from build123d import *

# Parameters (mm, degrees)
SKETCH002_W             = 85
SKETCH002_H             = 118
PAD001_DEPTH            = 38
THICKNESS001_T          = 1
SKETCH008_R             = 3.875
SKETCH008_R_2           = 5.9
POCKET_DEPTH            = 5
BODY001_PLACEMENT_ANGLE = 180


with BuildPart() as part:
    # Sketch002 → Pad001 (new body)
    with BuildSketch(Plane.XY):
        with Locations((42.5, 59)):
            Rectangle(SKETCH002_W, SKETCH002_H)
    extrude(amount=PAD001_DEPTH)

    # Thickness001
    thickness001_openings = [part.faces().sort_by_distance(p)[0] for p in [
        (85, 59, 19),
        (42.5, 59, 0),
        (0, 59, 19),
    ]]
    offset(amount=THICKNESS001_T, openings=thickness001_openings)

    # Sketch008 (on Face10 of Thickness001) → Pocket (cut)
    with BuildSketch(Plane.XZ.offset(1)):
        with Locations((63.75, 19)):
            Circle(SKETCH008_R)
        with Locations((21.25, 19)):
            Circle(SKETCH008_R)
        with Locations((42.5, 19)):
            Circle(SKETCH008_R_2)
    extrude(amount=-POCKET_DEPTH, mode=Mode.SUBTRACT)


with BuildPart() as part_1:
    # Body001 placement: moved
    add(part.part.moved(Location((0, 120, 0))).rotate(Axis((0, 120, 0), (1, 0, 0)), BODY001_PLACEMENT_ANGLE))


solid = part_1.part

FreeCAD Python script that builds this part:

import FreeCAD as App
import Part
import Sketcher


def faces_at(feature, points):
    """Names of the faces that lie closest to the given points."""
    faces = feature.Shape.Faces
    near = lambda p: min(range(len(faces)), key=lambda i: faces[i].distToShape(Part.Vertex(*p))[0])
    return sorted({f"Face{near(p) + 1}" for p in points})


def add_polygon(sketch, points):
    """Adds a closed chain of lines whose ends are joined by coincident constraints."""
    first, n = sketch.GeometryCount, len(points)
    for a, b in zip(points, points[1:] + points[:1]):
        sketch.addGeometry(Part.LineSegment(App.Vector(*a, 0), App.Vector(*b, 0)), False)
    for i in range(n):
        sketch.addConstraint(Sketcher.Constraint("Coincident", first + i, 2, first + (i + 1) % n, 1))

doc = App.newDocument("Part")
body = doc.addObject("PartDesign::Body", "Body")

# Sketch on XY plane
sketch1 = body.newObject("Sketcher::SketchObject", "Sketch")
sketch1.AttachmentSupport = (doc.getObject("XY_Plane"), [""])
sketch1.MapMode = "FlatFace"
add_polygon(sketch1, [(0, 118), (0, 0), (85, 0), (85, 118)])  # lines 0-3
sketch1.addConstraint(Sketcher.Constraint("Vertical", 0))
sketch1.addConstraint(Sketcher.Constraint("Horizontal", 1))
sketch1.addConstraint(Sketcher.Constraint("Vertical", 2))
sketch1.addConstraint(Sketcher.Constraint("Horizontal", 3))
sketch1.addConstraint(Sketcher.Constraint("Coincident", 0, 2, -1, 1))
sketch1.addConstraint(Sketcher.Constraint("DistanceX", 1, 1, 1, 2, 85.0))
sketch1.addConstraint(Sketcher.Constraint("DistanceY", 0, 2, 0, 1, 118.0))
pad1 = body.newObject("PartDesign::Pad", "Pad")
pad1.Profile = sketch1
pad1.Length = 38
doc.recompute()

thickness = body.newObject("PartDesign::Thickness", "Thickness")
thickness.Base = (pad1, faces_at(pad1, [(85, 59, 19), (42.5, 59, 0), (0, 59, 19)]))
thickness.Value = 1
thickness.Reversed = False
thickness.Join = "Arc"

# Sketch on XZ plane
sketch2 = body.newObject("Sketcher::SketchObject", "Sketch001")
sketch2.AttachmentSupport = (doc.getObject("XZ_Plane"), [""])
sketch2.MapMode = "FlatFace"
sketch2.AttachmentOffset = App.Placement(App.Vector(0, 0, 1), App.Rotation())
sketch2.addGeometry(Part.Circle(App.Vector(63.75, 19, 0), App.Vector(0, 0, 1), 3.875), False)
sketch2.addGeometry(Part.Circle(App.Vector(21.25, 19, 0), App.Vector(0, 0, 1), 3.875), False)
sketch2.addGeometry(Part.Circle(App.Vector(42.5, 19, 0), App.Vector(0, 0, 1), 5.9), False)
sketch2.addConstraint(Sketcher.Constraint("Equal", 0, 1))
sketch2.addConstraint(Sketcher.Constraint("Horizontal", 0, 3, 1, 3))
sketch2.addConstraint(Sketcher.Constraint("Horizontal", 1, 3, 2, 3))
sketch2.addConstraint(Sketcher.Constraint("Diameter", 2, 11.8))
sketch2.addConstraint(Sketcher.Constraint("Diameter", 0, 7.75))
sketch2.addConstraint(Sketcher.Constraint("DistanceY", -1, 1, 0, 3, 19.0))
sketch2.addConstraint(Sketcher.Constraint("DistanceX", -1, 1, 2, 3, 42.5))
sketch2.addConstraint(Sketcher.Constraint("DistanceX", 1, 3, 0, 3, 42.5))
sketch2.addConstraint(Sketcher.Constraint("DistanceX", -1, 1, 0, 3, 63.75))
pocket1 = body.newObject("PartDesign::Pocket", "Pocket")
pocket1.Profile = sketch2
pocket1.Length = 5
body2 = doc.addObject("PartDesign::Body", "Body001")
doc.recompute()

body.Placement = App.Placement(App.Vector(0, 120, 0), App.Rotation(App.Vector(1, 0, 0), 180))
boolean = body2.newObject("PartDesign::Boolean", "Boolean")
boolean.Type = "Fuse"
boolean.addObjects([body])

doc.recompute()
